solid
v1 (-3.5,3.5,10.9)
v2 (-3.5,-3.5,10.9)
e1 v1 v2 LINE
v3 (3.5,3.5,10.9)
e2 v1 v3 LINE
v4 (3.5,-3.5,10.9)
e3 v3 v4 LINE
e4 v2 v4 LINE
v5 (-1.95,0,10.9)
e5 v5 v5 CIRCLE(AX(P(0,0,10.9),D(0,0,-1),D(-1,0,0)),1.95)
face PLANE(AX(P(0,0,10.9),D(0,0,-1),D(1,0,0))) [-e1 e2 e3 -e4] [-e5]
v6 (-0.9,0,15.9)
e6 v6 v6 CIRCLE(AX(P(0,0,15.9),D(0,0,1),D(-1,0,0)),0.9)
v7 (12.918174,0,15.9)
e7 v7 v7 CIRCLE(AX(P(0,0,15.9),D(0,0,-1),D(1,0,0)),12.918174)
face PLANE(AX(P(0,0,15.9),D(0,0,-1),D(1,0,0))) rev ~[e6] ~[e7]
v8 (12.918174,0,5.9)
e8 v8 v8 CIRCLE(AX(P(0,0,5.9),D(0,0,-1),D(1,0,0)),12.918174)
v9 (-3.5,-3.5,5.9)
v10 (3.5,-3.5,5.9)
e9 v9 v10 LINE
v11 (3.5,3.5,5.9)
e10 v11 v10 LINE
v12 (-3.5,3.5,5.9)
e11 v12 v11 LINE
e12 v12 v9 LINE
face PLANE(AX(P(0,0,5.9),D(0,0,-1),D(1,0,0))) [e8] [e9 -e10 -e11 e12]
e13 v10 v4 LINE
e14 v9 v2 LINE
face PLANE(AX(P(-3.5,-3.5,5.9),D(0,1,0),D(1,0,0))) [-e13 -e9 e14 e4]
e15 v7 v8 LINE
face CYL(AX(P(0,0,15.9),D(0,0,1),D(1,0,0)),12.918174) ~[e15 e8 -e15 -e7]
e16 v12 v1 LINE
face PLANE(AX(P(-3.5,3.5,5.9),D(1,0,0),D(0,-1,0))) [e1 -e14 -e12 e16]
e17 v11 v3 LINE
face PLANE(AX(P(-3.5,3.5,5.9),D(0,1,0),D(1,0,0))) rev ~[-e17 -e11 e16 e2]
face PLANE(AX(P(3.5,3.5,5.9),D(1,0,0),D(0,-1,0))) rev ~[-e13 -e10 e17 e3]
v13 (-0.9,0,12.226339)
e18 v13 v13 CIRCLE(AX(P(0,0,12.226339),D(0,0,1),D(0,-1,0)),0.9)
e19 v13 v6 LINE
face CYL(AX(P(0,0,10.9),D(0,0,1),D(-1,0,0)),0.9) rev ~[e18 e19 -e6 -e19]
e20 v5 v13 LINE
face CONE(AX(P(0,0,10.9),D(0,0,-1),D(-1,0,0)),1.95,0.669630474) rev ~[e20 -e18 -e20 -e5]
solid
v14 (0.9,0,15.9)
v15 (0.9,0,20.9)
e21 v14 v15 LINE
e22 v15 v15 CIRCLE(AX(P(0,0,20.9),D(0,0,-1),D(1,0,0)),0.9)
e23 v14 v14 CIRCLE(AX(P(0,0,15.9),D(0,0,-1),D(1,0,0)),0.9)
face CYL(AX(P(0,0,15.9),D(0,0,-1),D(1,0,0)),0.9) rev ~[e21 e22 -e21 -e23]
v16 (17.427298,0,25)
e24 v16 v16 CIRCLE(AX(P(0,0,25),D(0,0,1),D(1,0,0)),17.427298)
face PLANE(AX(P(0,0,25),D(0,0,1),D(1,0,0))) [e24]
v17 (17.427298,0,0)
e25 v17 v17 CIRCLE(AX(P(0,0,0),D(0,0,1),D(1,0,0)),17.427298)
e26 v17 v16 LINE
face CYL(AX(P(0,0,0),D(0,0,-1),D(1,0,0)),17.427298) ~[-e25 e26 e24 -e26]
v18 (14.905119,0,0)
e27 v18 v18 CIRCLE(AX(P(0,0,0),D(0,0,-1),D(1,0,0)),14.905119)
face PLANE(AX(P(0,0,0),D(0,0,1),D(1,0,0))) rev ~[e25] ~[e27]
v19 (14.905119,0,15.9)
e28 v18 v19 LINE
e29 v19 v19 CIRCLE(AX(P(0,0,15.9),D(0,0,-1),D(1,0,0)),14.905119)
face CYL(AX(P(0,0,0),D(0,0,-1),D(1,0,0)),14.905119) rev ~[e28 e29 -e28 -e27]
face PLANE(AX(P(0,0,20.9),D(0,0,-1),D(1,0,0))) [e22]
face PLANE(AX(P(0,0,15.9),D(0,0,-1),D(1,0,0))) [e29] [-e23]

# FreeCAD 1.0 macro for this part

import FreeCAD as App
import Part
import Sketcher

doc = App.newDocument("Part")
body = doc.addObject("PartDesign::Body", "Body")

# Sketch on XY plane
sketch1 = body.newObject("Sketcher::SketchObject", "Sketch")
sketch1.AttachmentSupport = (doc.getObject("XY_Plane"), [""])
sketch1.MapMode = "FlatFace"
sketch1.addGeometry(Part.Circle(App.Vector(0, 0, 0), App.Vector(0, 0, 1), 17.427298), False)
sketch1.addConstraint([
    Sketcher.Constraint("Coincident", 0, 3, -1, 1),
    Sketcher.Constraint("Diameter", 0, 34.854597),
])
pad1 = body.newObject("PartDesign::Pad", "Pad")
pad1.Profile = sketch1
pad1.Length = 25

# Sketch on XY plane
sketch2 = body.newObject("Sketcher::SketchObject", "Sketch001")
sketch2.AttachmentSupport = (doc.getObject("XY_Plane"), [""])
sketch2.MapMode = "FlatFace"
sketch2.addGeometry(Part.Circle(App.Vector(0, 0, 0), App.Vector(0, 0, 1), 14.905119), False)
sketch2.addConstraint([
    Sketcher.Constraint("Coincident", 0, 3, -1, 1),
    Sketcher.Constraint("Diameter", 0, 29.810237),
])
pocket1 = body.newObject("PartDesign::Pocket", "Pocket")
pocket1.Profile = sketch2
pocket1.Length = 15.9
pocket1.Reversed = True

# Sketch on XY plane
sketch3 = body.newObject("Sketcher::SketchObject", "Sketch002")
sketch3.AttachmentSupport = (doc.getObject("XY_Plane"), [""])
sketch3.MapMode = "FlatFace"
sketch3.AttachmentOffset = App.Placement(App.Vector(0, 0, 15.9), App.Rotation())
sketch3.addGeometry(Part.Circle(App.Vector(0, 0, 0), App.Vector(0, 0, 1), 0.9), False)
sketch3.addConstraint([
    Sketcher.Constraint("Coincident", 0, 3, -1, 1),
    Sketcher.Constraint("Diameter", 0, 1.8),
])
pocket2 = body.newObject("PartDesign::Pocket", "Pocket001")
pocket2.Profile = sketch3
pocket2.Length = 5
pocket2.Reversed = True
body2 = doc.addObject("PartDesign::Body", "Body001")

# Sketch on XY plane
sketch4 = body2.newObject("Sketcher::SketchObject", "Sketch003")
sketch4.AttachmentSupport = (doc.getObject("XY_Plane001"), [""])
sketch4.MapMode = "FlatFace"
sketch4.AttachmentOffset = App.Placement(App.Vector(0, 0, 15.9), App.Rotation())
sketch4.addGeometry(Part.Circle(App.Vector(0, 0, 0), App.Vector(0, 0, 1), 12.918174), False)
sketch4.addConstraint([
    Sketcher.Constraint("Coincident", 0, 3, -1, 1),
    Sketcher.Constraint("Diameter", 0, 25.836348),
])
pad2 = body2.newObject("PartDesign::Pad", "Pad001")
pad2.Profile = sketch4
pad2.Length = 10
pad2.Reversed = True

# Sketch on XY plane
sketch5 = body2.newObject("Sketcher::SketchObject", "Sketch004")
sketch5.AttachmentSupport = (doc.getObject("XY_Plane001"), [""])
sketch5.MapMode = "FlatFace"
sketch5.AttachmentOffset = App.Placement(App.Vector(0, 0, 5.9), App.Rotation())
sketch5.addGeometry([
    Part.LineSegment(App.Vector(-3.5, -3.5, 0), App.Vector(-3.5, 3.5, 0)),
    Part.LineSegment(App.Vector(-3.5, 3.5, 0), App.Vector(3.5, 3.5, 0)),
    Part.LineSegment(App.Vector(3.5, 3.5, 0), App.Vector(3.5, -3.5, 0)),
    Part.LineSegment(App.Vector(3.5, -3.5, 0), App.Vector(-3.5, -3.5, 0)),
], False)
sketch5.addConstraint([
    Sketcher.Constraint("Coincident", 0, 2, 1, 1),
    Sketcher.Constraint("Coincident", 1, 2, 2, 1),
    Sketcher.Constraint("Coincident", 2, 2, 3, 1),
    Sketcher.Constraint("Coincident", 3, 2, 0, 1),
    Sketcher.Constraint("Vertical", 0),
    Sketcher.Constraint("Horizontal", 1),
    Sketcher.Constraint("Vertical", 2),
    Sketcher.Constraint("Horizontal", 3),
    Sketcher.Constraint("Symmetric", 0, 2, 2, 2, -1, 1),
    Sketcher.Constraint("Equal", 3, 0),
    Sketcher.Constraint("DistanceX", 1, 1, 1, 2, 7.0),
])
pocket3 = body2.newObject("PartDesign::Pocket", "Pocket002")
pocket3.Profile = sketch5
pocket3.Length = 5
pocket3.Reversed = True

# Sketch on XY plane
sketch6 = body2.newObject("Sketcher::SketchObject", "Sketch005")
sketch6.AttachmentSupport = (doc.getObject("XY_Plane001"), [""])
sketch6.MapMode = "FlatFace"
sketch6.AttachmentOffset = App.Placement(App.Vector(0, 0, 10.9), App.Rotation())
sketch6.addGeometry(Part.Circle(App.Vector(0, 0, 0), App.Vector(0, 0, 1), 0.9), False)
sketch6.addConstraint([
    Sketcher.Constraint("Coincident", 0, 3, -1, 1),
    Sketcher.Constraint("Diameter", 0, 1.8),
])
doc.recompute()
hole = body2.newObject("PartDesign::Hole", "Hole")
hole.Profile = sketch6
hole.ThreadType = "None"
hole.Diameter = 1.8
hole.DepthType = "Dimension"
hole.Depth = 5
hole.DrillPoint = "Angled"
hole.DrillPointAngle = 118
hole.HoleCutType = "Countersink"
hole.HoleCutDiameter = 3.9
hole.HoleCutCountersinkAngle = 76.734
hole.Reversed = True

doc.recompute()
